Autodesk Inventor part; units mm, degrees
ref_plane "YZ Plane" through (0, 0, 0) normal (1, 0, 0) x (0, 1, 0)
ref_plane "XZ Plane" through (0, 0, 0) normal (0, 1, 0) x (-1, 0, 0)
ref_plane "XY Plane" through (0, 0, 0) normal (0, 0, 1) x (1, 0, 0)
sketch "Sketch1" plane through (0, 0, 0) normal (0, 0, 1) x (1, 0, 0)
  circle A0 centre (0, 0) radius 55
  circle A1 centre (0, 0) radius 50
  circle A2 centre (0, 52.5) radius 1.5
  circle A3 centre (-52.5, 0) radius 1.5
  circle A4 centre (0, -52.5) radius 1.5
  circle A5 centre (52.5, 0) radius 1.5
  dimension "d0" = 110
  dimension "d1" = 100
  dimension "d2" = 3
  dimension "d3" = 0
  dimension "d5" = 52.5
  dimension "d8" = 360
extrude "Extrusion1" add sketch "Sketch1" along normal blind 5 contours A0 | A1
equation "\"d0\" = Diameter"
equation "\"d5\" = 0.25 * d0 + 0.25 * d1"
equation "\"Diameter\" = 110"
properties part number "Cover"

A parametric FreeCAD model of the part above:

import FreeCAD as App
import Part
import Sketcher

V = App.Vector

doc = App.newDocument("Part")
params = doc.addObject("Spreadsheet::Sheet", "Params")
for row, (alias, value) in enumerate([
    ("sketch1_diameter", "110 mm"),
    ("sketch1_diameter2", "3 mm"),
    ("pad1_length", "5 mm"),
], start=1):
    params.set(f"A{row}", alias)
    params.set(f"B{row}", "=" + value)
    params.setAlias(f"B{row}", alias)

body = doc.addObject("PartDesign::Body", "Body")

# Sketch on XY plane
sketch1 = body.newObject("Sketcher::SketchObject", "Sketch")
sketch1.AttachmentSupport = (doc.getObject("XY_Plane"), [""])
sketch1.MapMode = "FlatFace"
sketch1.addGeometry([
    Part.Circle(V(0, 0, 0), V(0, 0, 1), 55),  # 0
    Part.Circle(V(0, -52.5, 0), V(0, 0, 1), 1.5),  # 1
    Part.Circle(V(-52.5, 0, 0), V(0, 0, 1), 1.5),  # 2
    Part.Circle(V(52.5, 0, 0), V(0, 0, 1), 1.5),  # 3
    Part.Circle(V(0, 52.5, 0), V(0, 0, 1), 1.5),  # 4
], False)
sketch1.addConstraint([
    Sketcher.Constraint("Coincident", 0, 3, -1, 1),
    Sketcher.Constraint("Equal", 1, 2),
    Sketcher.Constraint("Equal", 2, 3),
    Sketcher.Constraint("Equal", 3, 4),
    Sketcher.Constraint("Symmetric", 2, 3, 3, 3, -1, 1),
    Sketcher.Constraint("Symmetric", 1, 3, 4, 3, -1, 1),
    Sketcher.Constraint("PointOnObject", 1, 3, -2),
    Sketcher.Constraint("PointOnObject", 2, 3, -1),
    Sketcher.Constraint("Diameter", 0, 110.0),
    Sketcher.Constraint("Diameter", 1, 3.0),
    Sketcher.Constraint("DistanceY", 1, 3, -1, 1, 52.5),
    Sketcher.Constraint("DistanceX", 2, 3, -1, 1, 52.5),
])
sketch1.setExpression("Constraints[8]", "Params.sketch1_diameter")
sketch1.setExpression("Constraints[9]", "Params.sketch1_diameter2")
pad1 = body.newObject("PartDesign::Pad", "Pad")
pad1.Profile = sketch1
pad1.setExpression("Length", "Params.pad1_length")

doc.recompute()
